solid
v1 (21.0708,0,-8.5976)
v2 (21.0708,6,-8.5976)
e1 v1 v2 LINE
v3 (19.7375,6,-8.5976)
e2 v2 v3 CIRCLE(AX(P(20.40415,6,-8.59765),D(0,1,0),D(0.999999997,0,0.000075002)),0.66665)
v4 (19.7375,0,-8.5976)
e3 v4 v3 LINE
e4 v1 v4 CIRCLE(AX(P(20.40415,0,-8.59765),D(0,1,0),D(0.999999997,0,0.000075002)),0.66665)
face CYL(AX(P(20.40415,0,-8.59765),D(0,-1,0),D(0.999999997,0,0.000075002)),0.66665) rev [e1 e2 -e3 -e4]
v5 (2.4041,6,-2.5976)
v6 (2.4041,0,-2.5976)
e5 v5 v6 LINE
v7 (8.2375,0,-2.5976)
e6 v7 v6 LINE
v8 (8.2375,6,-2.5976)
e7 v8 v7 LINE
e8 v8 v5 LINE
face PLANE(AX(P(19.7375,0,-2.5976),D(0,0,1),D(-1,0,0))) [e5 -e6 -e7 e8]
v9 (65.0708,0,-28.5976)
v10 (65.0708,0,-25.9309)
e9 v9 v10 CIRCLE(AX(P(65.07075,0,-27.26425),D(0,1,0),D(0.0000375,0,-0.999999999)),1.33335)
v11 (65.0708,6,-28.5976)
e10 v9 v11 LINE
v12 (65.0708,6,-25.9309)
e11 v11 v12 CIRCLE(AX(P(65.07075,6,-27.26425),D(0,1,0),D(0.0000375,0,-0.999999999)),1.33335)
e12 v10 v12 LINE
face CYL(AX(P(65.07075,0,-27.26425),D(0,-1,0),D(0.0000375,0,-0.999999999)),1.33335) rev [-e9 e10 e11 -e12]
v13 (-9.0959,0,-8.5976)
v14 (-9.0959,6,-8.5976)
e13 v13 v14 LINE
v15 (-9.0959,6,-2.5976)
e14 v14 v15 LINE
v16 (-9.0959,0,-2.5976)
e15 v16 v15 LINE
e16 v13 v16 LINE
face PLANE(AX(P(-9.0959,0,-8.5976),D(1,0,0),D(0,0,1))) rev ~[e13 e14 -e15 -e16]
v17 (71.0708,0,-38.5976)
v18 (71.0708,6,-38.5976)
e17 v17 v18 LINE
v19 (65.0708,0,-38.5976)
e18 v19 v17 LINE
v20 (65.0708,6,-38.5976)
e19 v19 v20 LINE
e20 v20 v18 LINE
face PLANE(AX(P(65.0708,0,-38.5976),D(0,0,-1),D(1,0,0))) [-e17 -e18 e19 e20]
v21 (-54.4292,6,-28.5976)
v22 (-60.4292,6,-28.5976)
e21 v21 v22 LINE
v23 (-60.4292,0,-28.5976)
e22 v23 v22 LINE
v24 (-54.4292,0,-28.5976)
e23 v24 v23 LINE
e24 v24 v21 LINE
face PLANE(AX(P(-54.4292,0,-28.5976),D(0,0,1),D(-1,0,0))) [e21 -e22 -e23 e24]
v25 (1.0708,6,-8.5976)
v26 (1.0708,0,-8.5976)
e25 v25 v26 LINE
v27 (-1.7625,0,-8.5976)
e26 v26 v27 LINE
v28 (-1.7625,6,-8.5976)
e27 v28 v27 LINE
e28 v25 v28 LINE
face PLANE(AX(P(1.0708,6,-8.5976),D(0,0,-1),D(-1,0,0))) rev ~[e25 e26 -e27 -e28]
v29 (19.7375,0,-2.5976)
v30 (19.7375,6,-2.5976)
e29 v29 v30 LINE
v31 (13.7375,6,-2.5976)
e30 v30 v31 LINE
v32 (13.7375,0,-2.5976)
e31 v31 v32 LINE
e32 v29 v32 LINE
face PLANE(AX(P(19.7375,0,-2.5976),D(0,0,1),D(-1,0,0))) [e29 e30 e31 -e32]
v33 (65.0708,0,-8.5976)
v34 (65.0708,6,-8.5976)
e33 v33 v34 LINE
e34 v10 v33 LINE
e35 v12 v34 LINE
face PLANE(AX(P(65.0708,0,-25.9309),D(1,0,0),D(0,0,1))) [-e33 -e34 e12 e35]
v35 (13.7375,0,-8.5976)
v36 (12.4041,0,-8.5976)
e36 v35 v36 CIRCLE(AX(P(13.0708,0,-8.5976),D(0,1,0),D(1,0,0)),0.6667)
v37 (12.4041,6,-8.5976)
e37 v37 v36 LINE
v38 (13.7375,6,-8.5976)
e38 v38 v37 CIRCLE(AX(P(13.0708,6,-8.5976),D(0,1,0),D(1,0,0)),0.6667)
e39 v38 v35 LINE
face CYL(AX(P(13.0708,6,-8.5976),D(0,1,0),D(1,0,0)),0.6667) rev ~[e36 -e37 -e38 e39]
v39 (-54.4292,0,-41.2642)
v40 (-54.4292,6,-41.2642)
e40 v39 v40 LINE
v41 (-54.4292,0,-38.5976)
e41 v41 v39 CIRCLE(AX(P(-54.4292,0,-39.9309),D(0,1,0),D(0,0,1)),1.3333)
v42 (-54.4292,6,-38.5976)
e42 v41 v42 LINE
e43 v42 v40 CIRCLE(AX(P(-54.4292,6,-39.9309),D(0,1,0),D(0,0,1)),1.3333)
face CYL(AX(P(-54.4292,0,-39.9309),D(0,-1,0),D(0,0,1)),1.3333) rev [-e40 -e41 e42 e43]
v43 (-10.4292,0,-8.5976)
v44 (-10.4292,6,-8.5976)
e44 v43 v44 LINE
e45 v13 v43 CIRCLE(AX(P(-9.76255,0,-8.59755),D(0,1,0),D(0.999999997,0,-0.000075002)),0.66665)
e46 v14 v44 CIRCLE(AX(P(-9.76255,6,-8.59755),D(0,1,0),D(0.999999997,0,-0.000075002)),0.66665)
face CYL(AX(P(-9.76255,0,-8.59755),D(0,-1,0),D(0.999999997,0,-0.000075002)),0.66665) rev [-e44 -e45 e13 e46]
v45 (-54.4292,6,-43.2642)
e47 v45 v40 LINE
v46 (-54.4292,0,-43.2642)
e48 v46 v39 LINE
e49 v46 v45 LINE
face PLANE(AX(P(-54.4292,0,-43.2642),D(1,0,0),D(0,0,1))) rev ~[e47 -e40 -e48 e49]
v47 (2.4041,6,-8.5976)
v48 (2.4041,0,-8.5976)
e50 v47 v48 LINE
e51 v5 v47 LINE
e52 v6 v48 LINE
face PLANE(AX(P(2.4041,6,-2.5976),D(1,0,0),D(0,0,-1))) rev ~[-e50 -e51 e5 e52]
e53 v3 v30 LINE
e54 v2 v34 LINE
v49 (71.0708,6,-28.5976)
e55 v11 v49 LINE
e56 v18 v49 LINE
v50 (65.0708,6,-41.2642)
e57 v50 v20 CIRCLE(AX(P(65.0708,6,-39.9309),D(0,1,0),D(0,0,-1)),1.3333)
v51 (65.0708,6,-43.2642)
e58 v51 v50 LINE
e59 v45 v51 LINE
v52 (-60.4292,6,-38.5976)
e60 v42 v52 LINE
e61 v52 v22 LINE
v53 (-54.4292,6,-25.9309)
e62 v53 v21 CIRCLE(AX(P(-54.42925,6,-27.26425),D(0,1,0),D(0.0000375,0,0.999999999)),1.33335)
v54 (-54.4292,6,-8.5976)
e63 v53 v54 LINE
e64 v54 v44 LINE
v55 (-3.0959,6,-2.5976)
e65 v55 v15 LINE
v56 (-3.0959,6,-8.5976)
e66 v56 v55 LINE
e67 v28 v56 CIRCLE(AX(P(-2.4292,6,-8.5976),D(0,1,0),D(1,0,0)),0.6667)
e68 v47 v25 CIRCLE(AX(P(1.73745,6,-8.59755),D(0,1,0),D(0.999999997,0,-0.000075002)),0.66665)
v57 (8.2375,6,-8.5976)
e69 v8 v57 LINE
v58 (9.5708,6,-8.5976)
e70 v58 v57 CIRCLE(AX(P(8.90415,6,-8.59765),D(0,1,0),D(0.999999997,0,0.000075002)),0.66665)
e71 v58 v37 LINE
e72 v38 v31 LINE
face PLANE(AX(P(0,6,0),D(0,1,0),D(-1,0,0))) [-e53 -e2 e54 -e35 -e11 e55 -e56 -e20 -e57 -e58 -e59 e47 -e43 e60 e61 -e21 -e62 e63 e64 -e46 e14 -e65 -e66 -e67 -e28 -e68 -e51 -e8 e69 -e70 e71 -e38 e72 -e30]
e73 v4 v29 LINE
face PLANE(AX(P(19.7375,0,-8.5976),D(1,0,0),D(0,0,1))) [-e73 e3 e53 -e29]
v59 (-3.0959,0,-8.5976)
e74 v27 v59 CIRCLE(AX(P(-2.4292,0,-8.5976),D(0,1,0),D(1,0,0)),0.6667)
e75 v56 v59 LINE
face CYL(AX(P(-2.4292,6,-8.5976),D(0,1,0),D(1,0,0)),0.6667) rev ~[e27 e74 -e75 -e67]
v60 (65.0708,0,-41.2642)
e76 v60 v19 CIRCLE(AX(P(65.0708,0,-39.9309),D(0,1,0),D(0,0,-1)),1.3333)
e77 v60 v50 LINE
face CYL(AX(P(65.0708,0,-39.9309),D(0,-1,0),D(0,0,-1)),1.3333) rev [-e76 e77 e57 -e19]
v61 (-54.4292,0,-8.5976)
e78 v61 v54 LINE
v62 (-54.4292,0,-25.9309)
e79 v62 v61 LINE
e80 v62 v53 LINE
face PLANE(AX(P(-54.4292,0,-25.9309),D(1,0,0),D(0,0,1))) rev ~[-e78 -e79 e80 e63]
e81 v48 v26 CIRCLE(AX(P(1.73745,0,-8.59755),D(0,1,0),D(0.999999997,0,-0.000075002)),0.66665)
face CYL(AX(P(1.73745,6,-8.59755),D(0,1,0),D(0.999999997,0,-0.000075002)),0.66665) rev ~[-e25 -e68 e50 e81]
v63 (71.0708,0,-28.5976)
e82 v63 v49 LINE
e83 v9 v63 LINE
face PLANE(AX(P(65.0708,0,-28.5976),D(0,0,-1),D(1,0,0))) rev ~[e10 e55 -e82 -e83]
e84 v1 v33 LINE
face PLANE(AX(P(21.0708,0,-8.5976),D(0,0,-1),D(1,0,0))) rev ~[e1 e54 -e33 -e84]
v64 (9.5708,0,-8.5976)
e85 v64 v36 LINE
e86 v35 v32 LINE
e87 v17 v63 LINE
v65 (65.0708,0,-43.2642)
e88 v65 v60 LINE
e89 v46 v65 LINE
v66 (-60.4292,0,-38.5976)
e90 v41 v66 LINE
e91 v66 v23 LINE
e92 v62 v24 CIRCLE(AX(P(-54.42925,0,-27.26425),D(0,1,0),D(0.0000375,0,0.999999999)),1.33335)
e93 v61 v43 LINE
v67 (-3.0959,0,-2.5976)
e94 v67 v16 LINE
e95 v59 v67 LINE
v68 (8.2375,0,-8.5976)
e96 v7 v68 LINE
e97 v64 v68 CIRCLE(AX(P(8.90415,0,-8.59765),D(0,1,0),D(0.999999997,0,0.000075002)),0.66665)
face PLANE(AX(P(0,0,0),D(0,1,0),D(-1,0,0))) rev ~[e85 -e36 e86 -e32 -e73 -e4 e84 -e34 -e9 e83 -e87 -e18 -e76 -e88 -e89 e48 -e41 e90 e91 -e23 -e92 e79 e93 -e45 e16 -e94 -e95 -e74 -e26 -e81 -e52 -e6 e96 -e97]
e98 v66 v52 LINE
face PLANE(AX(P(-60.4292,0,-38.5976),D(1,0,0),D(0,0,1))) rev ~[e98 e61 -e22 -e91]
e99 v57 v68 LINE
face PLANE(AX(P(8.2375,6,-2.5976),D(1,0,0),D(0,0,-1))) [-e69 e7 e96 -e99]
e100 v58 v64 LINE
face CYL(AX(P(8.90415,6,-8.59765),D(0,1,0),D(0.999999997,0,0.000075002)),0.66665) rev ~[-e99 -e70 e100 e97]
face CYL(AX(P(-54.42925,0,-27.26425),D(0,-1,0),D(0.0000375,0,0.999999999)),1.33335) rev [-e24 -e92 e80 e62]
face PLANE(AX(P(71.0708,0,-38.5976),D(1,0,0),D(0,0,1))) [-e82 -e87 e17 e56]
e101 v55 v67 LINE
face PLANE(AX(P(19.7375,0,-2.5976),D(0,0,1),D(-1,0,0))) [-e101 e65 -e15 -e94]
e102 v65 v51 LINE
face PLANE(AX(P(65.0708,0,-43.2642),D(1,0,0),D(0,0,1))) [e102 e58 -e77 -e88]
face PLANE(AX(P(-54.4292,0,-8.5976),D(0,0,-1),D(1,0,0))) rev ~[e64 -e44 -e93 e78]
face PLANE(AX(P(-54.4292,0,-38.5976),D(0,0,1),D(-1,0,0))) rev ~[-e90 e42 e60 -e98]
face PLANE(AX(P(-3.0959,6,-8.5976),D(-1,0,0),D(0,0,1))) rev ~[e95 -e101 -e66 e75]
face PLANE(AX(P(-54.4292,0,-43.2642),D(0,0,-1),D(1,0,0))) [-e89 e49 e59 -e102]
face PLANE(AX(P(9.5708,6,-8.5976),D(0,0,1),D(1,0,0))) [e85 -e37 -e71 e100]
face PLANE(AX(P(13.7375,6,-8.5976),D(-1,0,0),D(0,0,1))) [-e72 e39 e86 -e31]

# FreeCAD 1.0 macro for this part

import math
import FreeCAD as App
import Part
import Sketcher
from FreeCAD import Vector
Q = App.Units.Quantity

doc = App.newDocument("Part")
body = doc.addObject("PartDesign::Body", "Body")

sketch1 = body.newObject("Sketcher::SketchObject", "Sketch")
sketch1.AttachmentSupport = (doc.getObject("XZ_Plane"), [""])
sketch1.MapMode = "FlatFace"
sketch1.addGeometry([
    Part.LineSegment(Vector(65.1, -43.3, 0), Vector(-54.4, -43.3, 0)),
    Part.LineSegment(Vector(-54.4, -43.3, 0), Vector(-54.4, -41.3, 0)),
    Part.ArcOfCircle(Part.Circle(Vector(-54.4, -39.9, 0), Vector(0, 0, 1), 1.3), math.radians(-90), math.radians(90)),
    Part.LineSegment(Vector(-54.4, -38.6, 0), Vector(-60.4, -38.6, 0)),
    Part.LineSegment(Vector(-60.4, -38.6, 0), Vector(-60.4, -28.6, 0)),
    Part.LineSegment(Vector(-60.4, -28.6, 0), Vector(-54.4, -28.6, 0)),
    Part.ArcOfCircle(Part.Circle(Vector(-54.4, -27.3, 0), Vector(0, 0, 1), 1.3), math.radians(-90), math.radians(90)),
    Part.LineSegment(Vector(-54.4, -25.9, 0), Vector(-54.4, -8.6, 0)),
    Part.LineSegment(Vector(-54.4, -8.6, 0), Vector(-10.4, -8.6, 0)),
    Part.ArcOfCircle(Part.Circle(Vector(-9.8, -8.6, 0), Vector(0, 0, 1), 0.7), math.radians(180), math.radians(360)),
    Part.LineSegment(Vector(-9.1, -8.6, 0), Vector(-9.1, -2.6, 0)),
    Part.LineSegment(Vector(-9.1, -2.6, 0), Vector(19.7, -2.6, 0)),
    Part.LineSegment(Vector(19.7, -2.6, 0), Vector(19.7, -8.6, 0)),
    Part.ArcOfCircle(Part.Circle(Vector(20.4, -8.6, 0), Vector(0, 0, 1), 0.7), math.radians(180), math.radians(360)),
    Part.LineSegment(Vector(21.1, -8.6, 0), Vector(65.1, -8.6, 0)),
    Part.LineSegment(Vector(65.1, -8.6, 0), Vector(65.1, -25.9, 0)),
    Part.ArcOfCircle(Part.Circle(Vector(65.1, -27.3, 0), Vector(0, 0, 1), 1.3), math.radians(90), math.radians(270)),
    Part.LineSegment(Vector(65.1, -28.6, 0), Vector(71.1, -28.6, 0)),
    Part.LineSegment(Vector(71.1, -28.6, 0), Vector(71.1, -38.6, 0)),
    Part.LineSegment(Vector(71.1, -38.6, 0), Vector(65.1, -38.6, 0)),
    Part.ArcOfCircle(Part.Circle(Vector(65.1, -39.9, 0), Vector(0, 0, 1), 1.3), math.radians(90), math.radians(270)),
    Part.LineSegment(Vector(65.1, -41.3, 0), Vector(65.1, -43.3, 0)),
], False)
sketch1.addConstraint([
    Sketcher.Constraint("Coincident", 0, 2, 1, 1),
    Sketcher.Constraint("Coincident", 1, 2, 2, 1),
    Sketcher.Constraint("Tangent", 2, 2, 3, 1),
    Sketcher.Constraint("Coincident", 3, 2, 4, 1),
    Sketcher.Constraint("Coincident", 4, 2, 5, 1),
    Sketcher.Constraint("Tangent", 5, 2, 6, 1),
    Sketcher.Constraint("Coincident", 6, 2, 7, 1),
    Sketcher.Constraint("Coincident", 7, 2, 8, 1),
    Sketcher.Constraint("Coincident", 8, 2, 9, 1),
    Sketcher.Constraint("Tangent", 9, 2, 10, 1),
    Sketcher.Constraint("Coincident", 10, 2, 11, 1),
    Sketcher.Constraint("Coincident", 11, 2, 12, 1),
    Sketcher.Constraint("Tangent", 12, 2, 13, 1),
    Sketcher.Constraint("Coincident", 13, 2, 14, 1),
    Sketcher.Constraint("Coincident", 14, 2, 15, 1),
    Sketcher.Constraint("Coincident", 15, 2, 16, 1),
    Sketcher.Constraint("Tangent", 16, 2, 17, 1),
    Sketcher.Constraint("Coincident", 17, 2, 18, 1),
    Sketcher.Constraint("Coincident", 18, 2, 19, 1),
    Sketcher.Constraint("Tangent", 19, 2, 20, 1),
    Sketcher.Constraint("Coincident", 20, 2, 21, 1),
    Sketcher.Constraint("Coincident", 21, 2, 0, 1),
    Sketcher.Constraint("Horizontal", 0),
    Sketcher.Constraint("Vertical", 1),
    Sketcher.Constraint("Horizontal", 3),
    Sketcher.Constraint("Vertical", 4),
    Sketcher.Constraint("Horizontal", 5),
    Sketcher.Constraint("Vertical", 7),
    Sketcher.Constraint("Horizontal", 8),
    Sketcher.Constraint("Vertical", 10),
    Sketcher.Constraint("Horizontal", 11),
    Sketcher.Constraint("Vertical", 12),
    Sketcher.Constraint("Horizontal", 14),
    Sketcher.Constraint("Vertical", 15),
    Sketcher.Constraint("Horizontal", 17),
    Sketcher.Constraint("Vertical", 18),
    Sketcher.Constraint("Horizontal", 19),
    Sketcher.Constraint("Vertical", 21),
    Sketcher.Constraint("Equal", 2, 6),
    Sketcher.Constraint("Equal", 9, 13),
    Sketcher.Constraint("Equal", 6, 16),
    Sketcher.Constraint("Equal", 16, 20),
    Sketcher.Constraint("Horizontal", 9, 3, 13, 3),
    Sketcher.Constraint("Horizontal", 6, 3, 16, 3),
    Sketcher.Constraint("Horizontal", 2, 3, 20, 3),
    Sketcher.Constraint("Horizontal", 13, 3, 7, 2),
    Sketcher.Constraint("Horizontal", 12, 2, 13, 2),
    Sketcher.Constraint("Vertical", 2, 3, 6, 3),
    Sketcher.Constraint("Vertical", 16, 3, 20, 3),
    Sketcher.Constraint("Vertical", 6, 3, 0, 2),
    Sketcher.Constraint("Vertical", 5, 2, 6, 2),
    Sketcher.Constraint("Vertical", 20, 3, 14, 2),
    Sketcher.Constraint("Vertical", 19, 2, 20, 2),
    Sketcher.Constraint("Equal", 8, 14),
    Sketcher.Constraint("Equal", 5, 17),
    Sketcher.Constraint("Equal", 19, 10),
    Sketcher.Constraint("DistanceX", 3, 2, 3, 1, Q("6 mm")),
    Sketcher.Constraint("DistanceX", 8, 1, 8, 2, Q("44 mm")),
    Sketcher.Constraint("DistanceY", 1, 1, 1, 2, Q("2 mm")),
    Sketcher.Constraint("DistanceY", 4, 1, 4, 2, Q("10 mm")),
    Sketcher.Constraint("DistanceX", 0, 2, 0, 1, Q("119.5 mm")),
    Sketcher.Constraint("DistanceY", 5, 2, 7, 2, Q("20 mm")),
    Sketcher.Constraint("Radius", 2, Q("1.3333 mm")),
    Sketcher.Constraint("Radius", 9, Q("0.6666 mm")),
    Sketcher.Constraint("DistanceY", 2, 3, -1, 1, Q("39.931 mm")),
    Sketcher.Constraint("DistanceX", -1, 1, 13, 3, Q("20.404 mm")),
])
pad1 = body.newObject("PartDesign::Pad", "Pad")
pad1.Profile = sketch1
pad1.Length = 6
pad1.Reversed = True

sketch2 = body.newObject("Sketcher::SketchObject", "Sketch001")
sketch2.AttachmentSupport = (doc.getObject("XZ_Plane"), [""])
sketch2.MapMode = "FlatFace"
sketch2.AttachmentOffset = App.Placement(Vector(0, 0, -6), App.Rotation())
sketch2.addGeometry([
    Part.LineSegment(Vector(-3.1, -8.6, 0), Vector(-3.1, -2.6, 0)),
    Part.LineSegment(Vector(-3.1, -2.6, 0), Vector(2.4, -2.6, 0)),
    Part.LineSegment(Vector(2.4, -2.6, 0), Vector(2.4, -8.6, 0)),
    Part.ArcOfCircle(Part.Circle(Vector(1.7, -8.6, 0), Vector(0, 0, 1), 0.7), math.radians(180), math.radians(360)),
    Part.LineSegment(Vector(1.1, -8.6, 0), Vector(-1.8, -8.6, 0)),
    Part.ArcOfCircle(Part.Circle(Vector(-2.4, -8.6, 0), Vector(0, 0, 1), 0.7), math.radians(180), math.radians(360)),
    Part.LineSegment(Vector(8.2, -8.6, 0), Vector(8.2, -2.6, 0)),
    Part.LineSegment(Vector(8.2, -2.6, 0), Vector(13.7, -2.6, 0)),
    Part.LineSegment(Vector(13.7, -2.6, 0), Vector(13.7, -8.6, 0)),
    Part.ArcOfCircle(Part.Circle(Vector(13.1, -8.6, 0), Vector(0, 0, 1), 0.7), math.radians(180), math.radians(360)),
    Part.LineSegment(Vector(12.4, -8.6, 0), Vector(9.6, -8.6, 0)),
    Part.ArcOfCircle(Part.Circle(Vector(8.9, -8.6, 0), Vector(0, 0, 1), 0.7), math.radians(180), math.radians(360)),
], False)
sketch2.addConstraint([
    Sketcher.Constraint("Coincident", 0, 2, 1, 1),
    Sketcher.Constraint("Coincident", 1, 2, 2, 1),
    Sketcher.Constraint("Tangent", 2, 2, 3, 2),
    Sketcher.Constraint("Coincident", 3, 1, 4, 1),
    Sketcher.Constraint("Coincident", 4, 2, 5, 2),
    Sketcher.Constraint("Tangent", 5, 1, 0, 1),
    Sketcher.Constraint("Coincident", 6, 2, 7, 1),
    Sketcher.Constraint("Coincident", 7, 2, 8, 1),
    Sketcher.Constraint("Tangent", 8, 2, 9, 2),
    Sketcher.Constraint("Coincident", 9, 1, 10, 1),
    Sketcher.Constraint("Coincident", 10, 2, 11, 2),
    Sketcher.Constraint("Tangent", 11, 1, 6, 1),
    Sketcher.Constraint("Vertical", 0),
    Sketcher.Constraint("Horizontal", 1),
    Sketcher.Constraint("Vertical", 2),
    Sketcher.Constraint("Horizontal", 4),
    Sketcher.Constraint("Vertical", 6),
    Sketcher.Constraint("Horizontal", 7),
    Sketcher.Constraint("Vertical", 8),
    Sketcher.Constraint("Horizontal", 10),
    Sketcher.Constraint("Equal", 3, 5),
    Sketcher.Constraint("Equal", 5, 9),
    Sketcher.Constraint("Equal", 9, 11),
    Sketcher.Constraint("Horizontal", 3, 3, 5, 3),
    Sketcher.Constraint("Horizontal", 5, 3, 9, 3),
    Sketcher.Constraint("Horizontal", 9, 3, 11, 3),
    Sketcher.Constraint("Horizontal", 2, 2, 3, 1),
    Sketcher.Constraint("Horizontal", 1, 2, 6, 2),
    Sketcher.Constraint("Horizontal", 8, 2, 9, 1),
    Sketcher.Constraint("Equal", 1, 7),
    Sketcher.Constraint("DistanceY", 0, 1, 0, 2, Q("6 mm")),
    Sketcher.Constraint("DistanceX", 1, 1, 1, 2, Q("5.5 mm")),
    Sketcher.Constraint("Radius", 3, Q("0.6666 mm")),
    Sketcher.Constraint("DistanceX", 0, 2, 11, 3, Q("12 mm")),
    Sketcher.Constraint("DistanceX", -1, 1, 11, 3, Q("8.904 mm")),
    Sketcher.Constraint("DistanceY", 3, 3, -1, 1, Q("8.5976 mm")),
])
pocket1 = body.newObject("PartDesign::Pocket", "Pocket")
pocket1.Profile = sketch2
pocket1.Type = "ThroughAll"
pocket1.Reversed = True

doc.recompute()
